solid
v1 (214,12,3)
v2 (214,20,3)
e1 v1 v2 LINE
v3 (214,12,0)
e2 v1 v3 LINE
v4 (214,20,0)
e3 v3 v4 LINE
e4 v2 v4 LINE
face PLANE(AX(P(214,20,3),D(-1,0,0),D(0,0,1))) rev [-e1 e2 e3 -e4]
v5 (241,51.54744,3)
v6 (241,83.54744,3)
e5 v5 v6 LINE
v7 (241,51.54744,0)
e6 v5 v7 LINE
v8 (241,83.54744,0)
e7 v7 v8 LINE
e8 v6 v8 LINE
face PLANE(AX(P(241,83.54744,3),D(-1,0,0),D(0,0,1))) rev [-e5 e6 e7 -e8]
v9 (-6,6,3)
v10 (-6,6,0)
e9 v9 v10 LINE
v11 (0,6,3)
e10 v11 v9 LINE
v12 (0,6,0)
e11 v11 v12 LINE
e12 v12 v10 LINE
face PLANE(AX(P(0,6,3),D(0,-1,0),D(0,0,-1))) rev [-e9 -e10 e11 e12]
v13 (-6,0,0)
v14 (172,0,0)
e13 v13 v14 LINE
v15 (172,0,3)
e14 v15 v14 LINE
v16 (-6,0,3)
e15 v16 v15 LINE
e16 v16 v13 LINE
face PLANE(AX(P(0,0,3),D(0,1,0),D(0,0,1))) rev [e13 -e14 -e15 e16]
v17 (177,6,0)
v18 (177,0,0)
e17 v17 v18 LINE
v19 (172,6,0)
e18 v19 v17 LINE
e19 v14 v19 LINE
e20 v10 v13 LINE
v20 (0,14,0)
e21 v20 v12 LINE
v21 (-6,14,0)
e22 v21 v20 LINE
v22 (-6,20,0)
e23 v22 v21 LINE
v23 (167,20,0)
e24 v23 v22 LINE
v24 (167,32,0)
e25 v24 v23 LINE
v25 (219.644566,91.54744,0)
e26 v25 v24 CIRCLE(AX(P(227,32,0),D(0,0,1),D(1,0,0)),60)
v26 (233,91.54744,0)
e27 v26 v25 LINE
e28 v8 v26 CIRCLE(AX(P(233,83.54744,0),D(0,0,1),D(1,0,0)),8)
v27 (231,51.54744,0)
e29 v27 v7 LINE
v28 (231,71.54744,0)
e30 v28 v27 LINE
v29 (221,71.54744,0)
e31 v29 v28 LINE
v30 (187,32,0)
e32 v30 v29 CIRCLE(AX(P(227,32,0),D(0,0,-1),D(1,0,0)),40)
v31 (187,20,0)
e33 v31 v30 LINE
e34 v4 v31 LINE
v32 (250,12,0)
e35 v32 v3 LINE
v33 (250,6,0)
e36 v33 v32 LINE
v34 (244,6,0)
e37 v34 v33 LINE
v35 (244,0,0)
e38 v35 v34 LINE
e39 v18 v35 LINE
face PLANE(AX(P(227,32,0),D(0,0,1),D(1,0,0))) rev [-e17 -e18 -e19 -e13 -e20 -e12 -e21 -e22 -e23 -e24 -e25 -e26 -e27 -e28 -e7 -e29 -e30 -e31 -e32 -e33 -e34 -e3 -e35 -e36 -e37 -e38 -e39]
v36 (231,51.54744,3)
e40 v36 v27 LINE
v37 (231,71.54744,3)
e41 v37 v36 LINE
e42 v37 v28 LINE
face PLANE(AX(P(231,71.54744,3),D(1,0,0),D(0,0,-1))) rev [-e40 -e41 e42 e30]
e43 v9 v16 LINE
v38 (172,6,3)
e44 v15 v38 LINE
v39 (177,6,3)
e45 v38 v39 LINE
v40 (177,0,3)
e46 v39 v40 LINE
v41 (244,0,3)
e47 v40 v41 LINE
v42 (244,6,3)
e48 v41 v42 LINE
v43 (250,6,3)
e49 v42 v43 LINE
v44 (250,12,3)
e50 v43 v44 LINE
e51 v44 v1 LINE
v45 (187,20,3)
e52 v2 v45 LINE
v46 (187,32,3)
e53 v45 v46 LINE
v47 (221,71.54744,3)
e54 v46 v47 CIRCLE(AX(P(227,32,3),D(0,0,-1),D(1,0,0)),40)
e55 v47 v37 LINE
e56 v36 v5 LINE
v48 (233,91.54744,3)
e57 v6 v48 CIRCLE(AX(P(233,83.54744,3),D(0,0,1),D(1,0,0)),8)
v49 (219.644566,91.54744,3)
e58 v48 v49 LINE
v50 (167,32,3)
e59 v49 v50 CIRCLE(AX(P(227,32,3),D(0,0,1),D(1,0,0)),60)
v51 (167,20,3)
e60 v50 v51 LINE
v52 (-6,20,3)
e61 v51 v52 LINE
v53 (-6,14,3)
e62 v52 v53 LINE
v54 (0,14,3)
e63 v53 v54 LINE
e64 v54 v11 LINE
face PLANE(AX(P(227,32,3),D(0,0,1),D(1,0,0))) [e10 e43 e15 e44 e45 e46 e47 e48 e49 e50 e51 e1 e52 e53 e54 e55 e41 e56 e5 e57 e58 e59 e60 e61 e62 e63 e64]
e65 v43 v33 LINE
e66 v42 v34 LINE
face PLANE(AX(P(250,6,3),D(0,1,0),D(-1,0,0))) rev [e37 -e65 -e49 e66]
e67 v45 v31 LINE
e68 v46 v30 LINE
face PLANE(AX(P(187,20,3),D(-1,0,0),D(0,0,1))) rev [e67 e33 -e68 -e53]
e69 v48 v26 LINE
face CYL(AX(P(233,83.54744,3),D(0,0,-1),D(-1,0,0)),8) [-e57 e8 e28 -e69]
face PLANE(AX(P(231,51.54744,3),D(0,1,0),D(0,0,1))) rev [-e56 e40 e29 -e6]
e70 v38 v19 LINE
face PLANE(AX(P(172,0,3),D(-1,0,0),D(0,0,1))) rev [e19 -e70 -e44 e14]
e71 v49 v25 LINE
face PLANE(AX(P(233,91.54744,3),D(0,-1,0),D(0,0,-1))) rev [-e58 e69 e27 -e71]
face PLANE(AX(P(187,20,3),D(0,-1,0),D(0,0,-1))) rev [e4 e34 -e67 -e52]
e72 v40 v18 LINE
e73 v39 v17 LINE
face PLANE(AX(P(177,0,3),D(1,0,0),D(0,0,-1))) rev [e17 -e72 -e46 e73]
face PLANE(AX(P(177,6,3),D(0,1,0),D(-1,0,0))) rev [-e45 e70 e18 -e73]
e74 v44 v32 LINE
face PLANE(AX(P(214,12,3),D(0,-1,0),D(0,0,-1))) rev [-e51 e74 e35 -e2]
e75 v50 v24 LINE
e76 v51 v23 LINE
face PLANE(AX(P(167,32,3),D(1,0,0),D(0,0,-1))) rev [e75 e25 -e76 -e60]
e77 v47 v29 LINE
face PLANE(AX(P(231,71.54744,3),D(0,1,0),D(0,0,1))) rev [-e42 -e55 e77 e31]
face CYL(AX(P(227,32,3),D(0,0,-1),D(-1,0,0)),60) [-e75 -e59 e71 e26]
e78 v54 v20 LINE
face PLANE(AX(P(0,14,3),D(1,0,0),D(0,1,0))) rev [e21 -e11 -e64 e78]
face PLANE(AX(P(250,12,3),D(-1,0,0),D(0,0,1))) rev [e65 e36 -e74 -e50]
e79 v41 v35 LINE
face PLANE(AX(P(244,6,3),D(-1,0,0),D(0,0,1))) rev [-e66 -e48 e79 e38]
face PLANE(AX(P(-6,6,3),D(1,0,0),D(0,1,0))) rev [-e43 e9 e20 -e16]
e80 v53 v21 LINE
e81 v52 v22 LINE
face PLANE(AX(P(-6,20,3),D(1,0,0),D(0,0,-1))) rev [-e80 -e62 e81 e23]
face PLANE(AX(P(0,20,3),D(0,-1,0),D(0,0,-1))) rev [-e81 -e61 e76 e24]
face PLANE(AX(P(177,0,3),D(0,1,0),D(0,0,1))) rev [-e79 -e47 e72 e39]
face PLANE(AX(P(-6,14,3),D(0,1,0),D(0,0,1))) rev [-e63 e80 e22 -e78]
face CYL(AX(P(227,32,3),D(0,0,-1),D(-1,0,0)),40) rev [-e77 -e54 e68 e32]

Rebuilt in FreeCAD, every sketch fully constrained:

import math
import FreeCAD as App
import Part
import Sketcher
Q = App.Units.Quantity

doc = App.newDocument("Part")
body = doc.addObject("PartDesign::Body", "Body")

# Sketch on XY plane
sketch1 = body.newObject("Sketcher::SketchObject", "Sketch")
sketch1.AttachmentSupport = (doc.getObject("XY_Plane"), [""])
sketch1.MapMode = "FlatFace"
sketch1.addGeometry(Part.LineSegment(App.Vector(172, 0, 0), App.Vector(172, 6, 0)), False)
sketch1.addGeometry(Part.LineSegment(App.Vector(172, 6, 0), App.Vector(177, 6, 0)), False)
sketch1.addGeometry(Part.LineSegment(App.Vector(177, 6, 0), App.Vector(177, 0, 0)), False)
sketch1.addGeometry(Part.LineSegment(App.Vector(177, 0, 0), App.Vector(244, 0, 0)), False)
sketch1.addGeometry(Part.LineSegment(App.Vector(244, 0, 0), App.Vector(244, 6, 0)), False)
sketch1.addGeometry(Part.LineSegment(App.Vector(244, 6, 0), App.Vector(250, 6, 0)), False)
sketch1.addGeometry(Part.LineSegment(App.Vector(250, 6, 0), App.Vector(250, 12, 0)), False)
sketch1.addGeometry(Part.LineSegment(App.Vector(250, 12, 0), App.Vector(214, 12, 0)), False)
sketch1.addGeometry(Part.LineSegment(App.Vector(214, 12, 0), App.Vector(214, 20, 0)), False)
sketch1.addGeometry(Part.LineSegment(App.Vector(214, 20, 0), App.Vector(187, 20, 0)), False)
sketch1.addGeometry(Part.LineSegment(App.Vector(187, 20, 0), App.Vector(187, 32, 0)), False)
sketch1.addGeometry(Part.ArcOfCircle(Part.Circle(App.Vector(227, 32, 0), App.Vector(0, 0, 1), 40), math.radians(99), math.radians(180)), False)
sketch1.addGeometry(Part.LineSegment(App.Vector(221, 72, 0), App.Vector(231, 72, 0)), False)
sketch1.addGeometry(Part.LineSegment(App.Vector(231, 72, 0), App.Vector(231, 52, 0)), False)
sketch1.addGeometry(Part.LineSegment(App.Vector(231, 52, 0), App.Vector(241, 52, 0)), False)
sketch1.addGeometry(Part.LineSegment(App.Vector(241, 52, 0), App.Vector(241, 84, 0)), False)
sketch1.addGeometry(Part.ArcOfCircle(Part.Circle(App.Vector(233, 84, 0), App.Vector(0, 0, 1), 8), math.radians(0), math.radians(90)), False)
sketch1.addGeometry(Part.LineSegment(App.Vector(233, 92, 0), App.Vector(220, 92, 0)), False)
sketch1.addGeometry(Part.ArcOfCircle(Part.Circle(App.Vector(227, 32, 0), App.Vector(0, 0, 1), 60), math.radians(97), math.radians(180)), False)
sketch1.addGeometry(Part.LineSegment(App.Vector(167, 32, 0), App.Vector(167, 20, 0)), False)
sketch1.addGeometry(Part.LineSegment(App.Vector(167, 20, 0), App.Vector(-6, 20, 0)), False)
sketch1.addGeometry(Part.LineSegment(App.Vector(-6, 20, 0), App.Vector(-6, 14, 0)), False)
sketch1.addGeometry(Part.LineSegment(App.Vector(-6, 14, 0), App.Vector(0, 14, 0)), False)
sketch1.addGeometry(Part.LineSegment(App.Vector(0, 14, 0), App.Vector(0, 6, 0)), False)
sketch1.addGeometry(Part.LineSegment(App.Vector(0, 6, 0), App.Vector(-6, 6, 0)), False)
sketch1.addGeometry(Part.LineSegment(App.Vector(-6, 6, 0), App.Vector(-6, 0, 0)), False)
sketch1.addGeometry(Part.LineSegment(App.Vector(-6, 0, 0), App.Vector(172, 0, 0)), False)
sketch1.addConstraint(Sketcher.Constraint("Coincident", 0, 2, 1, 1))
sketch1.addConstraint(Sketcher.Constraint("Coincident", 1, 2, 2, 1))
sketch1.addConstraint(Sketcher.Constraint("Coincident", 2, 2, 3, 1))
sketch1.addConstraint(Sketcher.Constraint("Coincident", 3, 2, 4, 1))
sketch1.addConstraint(Sketcher.Constraint("Coincident", 4, 2, 5, 1))
sketch1.addConstraint(Sketcher.Constraint("Coincident", 5, 2, 6, 1))
sketch1.addConstraint(Sketcher.Constraint("Coincident", 6, 2, 7, 1))
sketch1.addConstraint(Sketcher.Constraint("Coincident", 7, 2, 8, 1))
sketch1.addConstraint(Sketcher.Constraint("Coincident", 8, 2, 9, 1))
sketch1.addConstraint(Sketcher.Constraint("Coincident", 9, 2, 10, 1))
sketch1.addConstraint(Sketcher.Constraint("Tangent", 10, 2, 11, 2))
sketch1.addConstraint(Sketcher.Constraint("Coincident", 11, 1, 12, 1))
sketch1.addConstraint(Sketcher.Constraint("Coincident", 12, 2, 13, 1))
sketch1.addConstraint(Sketcher.Constraint("Coincident", 13, 2, 14, 1))
sketch1.addConstraint(Sketcher.Constraint("Coincident", 14, 2, 15, 1))
sketch1.addConstraint(Sketcher.Constraint("Tangent", 15, 2, 16, 1))
sketch1.addConstraint(Sketcher.Constraint("Tangent", 16, 2, 17, 1))
sketch1.addConstraint(Sketcher.Constraint("Coincident", 17, 2, 18, 1))
sketch1.addConstraint(Sketcher.Constraint("Tangent", 18, 2, 19, 1))
sketch1.addConstraint(Sketcher.Constraint("Coincident", 19, 2, 20, 1))
sketch1.addConstraint(Sketcher.Constraint("Coincident", 20, 2, 21, 1))
sketch1.addConstraint(Sketcher.Constraint("Coincident", 21, 2, 22, 1))
sketch1.addConstraint(Sketcher.Constraint("Coincident", 22, 2, 23, 1))
sketch1.addConstraint(Sketcher.Constraint("Coincident", 23, 2, 24, 1))
sketch1.addConstraint(Sketcher.Constraint("Coincident", 24, 2, 25, 1))
sketch1.addConstraint(Sketcher.Constraint("Coincident", 25, 2, 26, 1))
sketch1.addConstraint(Sketcher.Constraint("Coincident", 26, 2, 0, 1))
sketch1.addConstraint(Sketcher.Constraint("Vertical", 0))
sketch1.addConstraint(Sketcher.Constraint("Horizontal", 1))
sketch1.addConstraint(Sketcher.Constraint("Vertical", 2))
sketch1.addConstraint(Sketcher.Constraint("Horizontal", 3))
sketch1.addConstraint(Sketcher.Constraint("Vertical", 4))
sketch1.addConstraint(Sketcher.Constraint("Horizontal", 5))
sketch1.addConstraint(Sketcher.Constraint("Vertical", 6))
sketch1.addConstraint(Sketcher.Constraint("Horizontal", 7))
sketch1.addConstraint(Sketcher.Constraint("Vertical", 8))
sketch1.addConstraint(Sketcher.Constraint("Horizontal", 9))
sketch1.addConstraint(Sketcher.Constraint("Vertical", 10))
sketch1.addConstraint(Sketcher.Constraint("Horizontal", 12))
sketch1.addConstraint(Sketcher.Constraint("Vertical", 13))
sketch1.addConstraint(Sketcher.Constraint("Horizontal", 14))
sketch1.addConstraint(Sketcher.Constraint("Vertical", 15))
sketch1.addConstraint(Sketcher.Constraint("Horizontal", 17))
sketch1.addConstraint(Sketcher.Constraint("Vertical", 19))
sketch1.addConstraint(Sketcher.Constraint("Horizontal", 20))
sketch1.addConstraint(Sketcher.Constraint("Vertical", 21))
sketch1.addConstraint(Sketcher.Constraint("Horizontal", 22))
sketch1.addConstraint(Sketcher.Constraint("Vertical", 23))
sketch1.addConstraint(Sketcher.Constraint("Horizontal", 24))
sketch1.addConstraint(Sketcher.Constraint("Vertical", 25))
sketch1.addConstraint(Sketcher.Constraint("Horizontal", 26))
sketch1.addConstraint(Sketcher.Constraint("Coincident", 18, 3, 11, 3))
sketch1.addConstraint(Sketcher.Constraint("PointOnObject", 2, 2, -1))
sketch1.addConstraint(Sketcher.Constraint("PointOnObject", 22, 2, -2))
sketch1.addConstraint(Sketcher.Constraint("PointOnObject", 25, 2, -1))
sketch1.addConstraint(Sketcher.Constraint("Horizontal", 1, 2, 4, 2))
sketch1.addConstraint(Sketcher.Constraint("Horizontal", 9, 2, 19, 2))
sketch1.addConstraint(Sketcher.Constraint("Horizontal", 5, 2, 23, 2))
sketch1.addConstraint(Sketcher.Constraint("Vertical", 21, 2, 24, 2))
sketch1.addConstraint(Sketcher.Constraint("Equal", 12, 14))
sketch1.addConstraint(Sketcher.Constraint("Equal", 5, 22))
sketch1.addConstraint(Sketcher.Constraint("Equal", 24, 0))
sketch1.addConstraint(Sketcher.Constraint("Equal", 4, 6))
sketch1.addConstraint(Sketcher.Constraint("Equal", 6, 21))
sketch1.addConstraint(Sketcher.Constraint("Radius", 11, Q("40 mm")))
sketch1.addConstraint(Sketcher.Constraint("Radius", 16, Q("8 mm")))
sketch1.addConstraint(Sketcher.Constraint("Radius", 18, Q("60 mm")))
sketch1.addConstraint(Sketcher.Constraint("DistanceX", 1, 1, 1, 2, Q("5 mm")))
sketch1.addConstraint(Sketcher.Constraint("DistanceX", 3, 1, 3, 2, Q("67 mm")))
sketch1.addConstraint(Sketcher.Constraint("DistanceX", 5, 1, 5, 2, Q("6 mm")))
sketch1.addConstraint(Sketcher.Constraint("DistanceX", 7, 2, 7, 1, Q("36 mm")))
sketch1.addConstraint(Sketcher.Constraint("DistanceX", 9, 2, 9, 1, Q("27 mm")))
sketch1.addConstraint(Sketcher.Constraint("DistanceX", 12, 1, 12, 2, Q("10 mm")))
sketch1.addConstraint(Sketcher.Constraint("DistanceX", 20, 2, 20, 1, Q("173 mm")))
sketch1.addConstraint(Sketcher.Constraint("DistanceY", 8, 1, 8, 2, Q("8 mm")))
sketch1.addConstraint(Sketcher.Constraint("DistanceY", 10, 1, 10, 2, Q("12 mm")))
sketch1.addConstraint(Sketcher.Constraint("DistanceY", 13, 2, 13, 1, Q("20 mm")))
sketch1.addConstraint(Sketcher.Constraint("DistanceY", 15, 1, 15, 2, Q("32 mm")))
sketch1.addConstraint(Sketcher.Constraint("DistanceX", -1, 1, 16, 3, Q("233 mm")))
pad1 = body.newObject("PartDesign::Pad", "Pad")
pad1.Profile = sketch1
pad1.Length = 3

doc.recompute()
